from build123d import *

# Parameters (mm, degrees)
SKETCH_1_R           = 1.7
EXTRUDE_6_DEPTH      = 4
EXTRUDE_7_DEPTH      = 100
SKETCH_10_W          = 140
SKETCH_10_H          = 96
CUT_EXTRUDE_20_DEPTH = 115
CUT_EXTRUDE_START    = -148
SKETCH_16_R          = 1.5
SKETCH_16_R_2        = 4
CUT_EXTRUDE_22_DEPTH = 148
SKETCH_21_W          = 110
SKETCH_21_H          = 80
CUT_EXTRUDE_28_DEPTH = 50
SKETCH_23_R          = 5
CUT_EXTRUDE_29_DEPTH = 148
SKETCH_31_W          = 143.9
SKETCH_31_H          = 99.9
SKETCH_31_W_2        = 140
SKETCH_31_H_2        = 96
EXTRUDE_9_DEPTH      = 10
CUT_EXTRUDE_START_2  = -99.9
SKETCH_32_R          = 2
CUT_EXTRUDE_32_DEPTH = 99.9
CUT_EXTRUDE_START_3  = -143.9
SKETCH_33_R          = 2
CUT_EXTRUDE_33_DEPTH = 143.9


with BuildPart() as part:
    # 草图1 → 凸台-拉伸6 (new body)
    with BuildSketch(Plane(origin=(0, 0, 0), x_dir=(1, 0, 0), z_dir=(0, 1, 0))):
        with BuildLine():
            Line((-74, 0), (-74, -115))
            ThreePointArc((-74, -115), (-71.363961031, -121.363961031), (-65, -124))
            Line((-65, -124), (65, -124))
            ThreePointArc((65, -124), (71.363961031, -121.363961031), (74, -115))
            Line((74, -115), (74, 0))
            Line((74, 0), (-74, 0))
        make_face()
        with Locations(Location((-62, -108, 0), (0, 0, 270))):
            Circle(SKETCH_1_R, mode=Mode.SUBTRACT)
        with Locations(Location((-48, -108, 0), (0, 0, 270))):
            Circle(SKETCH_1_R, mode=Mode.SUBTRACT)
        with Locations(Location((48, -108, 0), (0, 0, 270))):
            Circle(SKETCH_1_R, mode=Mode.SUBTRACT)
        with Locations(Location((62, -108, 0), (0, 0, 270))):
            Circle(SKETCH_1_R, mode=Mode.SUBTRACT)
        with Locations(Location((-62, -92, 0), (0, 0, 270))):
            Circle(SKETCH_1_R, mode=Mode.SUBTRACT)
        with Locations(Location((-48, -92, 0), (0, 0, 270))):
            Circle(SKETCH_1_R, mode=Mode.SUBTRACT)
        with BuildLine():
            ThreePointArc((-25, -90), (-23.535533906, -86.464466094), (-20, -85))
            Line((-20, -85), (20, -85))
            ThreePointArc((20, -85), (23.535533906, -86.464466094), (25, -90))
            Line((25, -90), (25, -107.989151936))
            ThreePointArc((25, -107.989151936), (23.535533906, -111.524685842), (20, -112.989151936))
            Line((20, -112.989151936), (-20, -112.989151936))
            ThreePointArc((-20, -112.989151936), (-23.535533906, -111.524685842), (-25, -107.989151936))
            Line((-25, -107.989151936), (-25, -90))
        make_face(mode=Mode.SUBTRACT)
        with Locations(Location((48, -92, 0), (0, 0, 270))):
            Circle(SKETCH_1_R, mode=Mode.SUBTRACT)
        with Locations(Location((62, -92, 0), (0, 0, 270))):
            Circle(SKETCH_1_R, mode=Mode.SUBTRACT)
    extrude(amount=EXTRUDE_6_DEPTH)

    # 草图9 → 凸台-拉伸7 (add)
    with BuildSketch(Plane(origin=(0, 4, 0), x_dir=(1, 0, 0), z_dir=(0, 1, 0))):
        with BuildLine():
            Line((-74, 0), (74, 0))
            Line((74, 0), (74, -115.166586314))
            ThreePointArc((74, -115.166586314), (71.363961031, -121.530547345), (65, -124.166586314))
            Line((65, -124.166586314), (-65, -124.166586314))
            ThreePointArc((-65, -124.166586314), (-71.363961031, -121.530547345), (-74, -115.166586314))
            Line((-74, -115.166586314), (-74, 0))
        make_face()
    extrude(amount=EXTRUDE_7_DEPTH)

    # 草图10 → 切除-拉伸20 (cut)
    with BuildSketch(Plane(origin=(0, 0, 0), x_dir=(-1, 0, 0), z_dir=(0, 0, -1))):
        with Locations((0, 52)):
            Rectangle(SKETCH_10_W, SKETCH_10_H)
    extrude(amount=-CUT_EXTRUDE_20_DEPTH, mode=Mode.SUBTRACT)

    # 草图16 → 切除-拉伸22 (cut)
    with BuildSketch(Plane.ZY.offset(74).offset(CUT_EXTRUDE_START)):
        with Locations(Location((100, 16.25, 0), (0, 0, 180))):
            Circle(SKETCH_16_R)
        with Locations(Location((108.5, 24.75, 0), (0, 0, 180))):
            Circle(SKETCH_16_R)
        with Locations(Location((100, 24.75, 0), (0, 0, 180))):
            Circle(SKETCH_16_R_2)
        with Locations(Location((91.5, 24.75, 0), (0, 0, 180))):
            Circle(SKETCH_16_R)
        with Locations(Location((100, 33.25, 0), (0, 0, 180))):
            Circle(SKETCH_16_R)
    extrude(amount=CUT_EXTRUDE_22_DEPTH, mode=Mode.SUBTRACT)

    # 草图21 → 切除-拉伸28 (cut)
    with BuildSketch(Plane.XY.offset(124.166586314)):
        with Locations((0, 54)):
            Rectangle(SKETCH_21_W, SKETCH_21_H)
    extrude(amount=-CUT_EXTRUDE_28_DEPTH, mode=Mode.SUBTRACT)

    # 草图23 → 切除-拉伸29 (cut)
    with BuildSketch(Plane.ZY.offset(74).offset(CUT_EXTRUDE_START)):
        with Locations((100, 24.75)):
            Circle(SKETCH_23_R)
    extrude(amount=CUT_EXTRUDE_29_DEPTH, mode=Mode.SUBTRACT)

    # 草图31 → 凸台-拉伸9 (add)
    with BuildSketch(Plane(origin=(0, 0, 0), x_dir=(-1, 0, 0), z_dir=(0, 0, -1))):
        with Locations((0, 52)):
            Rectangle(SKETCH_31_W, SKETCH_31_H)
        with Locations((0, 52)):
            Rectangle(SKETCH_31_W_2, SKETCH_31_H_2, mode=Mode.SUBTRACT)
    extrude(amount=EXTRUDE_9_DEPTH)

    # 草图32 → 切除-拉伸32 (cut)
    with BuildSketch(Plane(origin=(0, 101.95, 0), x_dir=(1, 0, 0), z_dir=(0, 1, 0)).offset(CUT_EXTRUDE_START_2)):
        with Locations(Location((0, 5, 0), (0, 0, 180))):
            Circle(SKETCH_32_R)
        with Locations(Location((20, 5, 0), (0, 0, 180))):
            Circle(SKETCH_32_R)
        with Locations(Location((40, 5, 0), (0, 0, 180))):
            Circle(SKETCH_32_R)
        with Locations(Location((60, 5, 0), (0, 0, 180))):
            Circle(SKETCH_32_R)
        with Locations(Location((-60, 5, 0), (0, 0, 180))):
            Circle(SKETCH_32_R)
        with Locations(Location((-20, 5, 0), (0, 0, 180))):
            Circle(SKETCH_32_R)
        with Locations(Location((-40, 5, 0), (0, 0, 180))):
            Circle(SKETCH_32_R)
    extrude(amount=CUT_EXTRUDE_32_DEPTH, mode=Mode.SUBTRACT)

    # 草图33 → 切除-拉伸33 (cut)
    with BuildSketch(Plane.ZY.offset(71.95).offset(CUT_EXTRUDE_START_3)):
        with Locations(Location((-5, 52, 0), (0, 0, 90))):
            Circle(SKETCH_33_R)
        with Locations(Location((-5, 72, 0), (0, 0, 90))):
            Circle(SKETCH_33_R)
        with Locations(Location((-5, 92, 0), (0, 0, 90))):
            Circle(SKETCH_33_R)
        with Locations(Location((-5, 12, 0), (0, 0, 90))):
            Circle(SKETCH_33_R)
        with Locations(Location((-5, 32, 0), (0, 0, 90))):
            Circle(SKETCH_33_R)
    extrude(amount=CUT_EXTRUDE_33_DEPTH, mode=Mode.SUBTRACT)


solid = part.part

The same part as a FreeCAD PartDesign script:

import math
import FreeCAD as App
import Part
import Sketcher


def add_polygon(sketch, points):
    """Adds a closed chain of lines whose ends are joined by coincident constraints."""
    first, n = sketch.GeometryCount, len(points)
    for a, b in zip(points, points[1:] + points[:1]):
        sketch.addGeometry(Part.LineSegment(App.Vector(*a, 0), App.Vector(*b, 0)), False)
    for i in range(n):
        sketch.addConstraint(Sketcher.Constraint("Coincident", first + i, 2, first + (i + 1) % n, 1))

doc = App.newDocument("Part")
body = doc.addObject("PartDesign::Body", "Body")

sketch1 = body.newObject("Sketcher::SketchObject", "Sketch")
sketch1.AttachmentSupport = (doc.getObject("XZ_Plane"), [""])
sketch1.MapMode = "FlatFace"
sketch1.addGeometry([
    Part.LineSegment(App.Vector(-74, 0, 0), App.Vector(-74, 115, 0)),
    Part.ArcOfCircle(Part.Circle(App.Vector(-65, 115, 0), App.Vector(0, 0, 1), 9), math.radians(90), math.radians(180)),
    Part.LineSegment(App.Vector(-65, 124, 0), App.Vector(65, 124, 0)),
    Part.ArcOfCircle(Part.Circle(App.Vector(65, 115, 0), App.Vector(0, 0, 1), 9), math.radians(0), math.radians(90)),
    Part.LineSegment(App.Vector(74, 115, 0), App.Vector(74, 0, 0)),
    Part.LineSegment(App.Vector(74, 0, 0), App.Vector(-74, 0, 0)),
    Part.Circle(App.Vector(-62, 108, 0), App.Vector(0, 0, 1), 1.7),
    Part.Circle(App.Vector(-48, 108, 0), App.Vector(0, 0, 1), 1.7),
    Part.Circle(App.Vector(48, 108, 0), App.Vector(0, 0, 1), 1.7),
    Part.Circle(App.Vector(62, 108, 0), App.Vector(0, 0, 1), 1.7),
    Part.LineSegment(App.Vector(-25, 108, 0), App.Vector(-25, 90, 0)),
    Part.ArcOfCircle(Part.Circle(App.Vector(-20, 90, 0), App.Vector(0, 0, 1), 5), math.radians(180), math.radians(270)),
    Part.LineSegment(App.Vector(-20, 85, 0), App.Vector(20, 85, 0)),
    Part.ArcOfCircle(Part.Circle(App.Vector(20, 90, 0), App.Vector(0, 0, 1), 5), math.radians(-90), math.radians(0)),
    Part.LineSegment(App.Vector(25, 90, 0), App.Vector(25, 108, 0)),
    Part.ArcOfCircle(Part.Circle(App.Vector(20, 108, 0), App.Vector(0, 0, 1), 5), math.radians(0), math.radians(90)),
    Part.LineSegment(App.Vector(20, 113, 0), App.Vector(-20, 113, 0)),
    Part.ArcOfCircle(Part.Circle(App.Vector(-20, 108, 0), App.Vector(0, 0, 1), 5), math.radians(90), math.radians(180)),
    Part.Circle(App.Vector(-62, 92, 0), App.Vector(0, 0, 1), 1.7),
    Part.Circle(App.Vector(-48, 92, 0), App.Vector(0, 0, 1), 1.7),
    Part.Circle(App.Vector(48, 92, 0), App.Vector(0, 0, 1), 1.7),
    Part.Circle(App.Vector(62, 92, 0), App.Vector(0, 0, 1), 1.7),
], False)
sketch1.addConstraint([
    Sketcher.Constraint("Tangent", 0, 2, 1, 2),
    Sketcher.Constraint("Tangent", 1, 1, 2, 1),
    Sketcher.Constraint("Tangent", 2, 2, 3, 2),
    Sketcher.Constraint("Tangent", 3, 1, 4, 1),
    Sketcher.Constraint("Coincident", 4, 2, 5, 1),
    Sketcher.Constraint("Coincident", 5, 2, 0, 1),
    Sketcher.Constraint("Tangent", 10, 2, 11, 1),
    Sketcher.Constraint("Tangent", 11, 2, 12, 1),
    Sketcher.Constraint("Tangent", 12, 2, 13, 1),
    Sketcher.Constraint("Tangent", 13, 2, 14, 1),
    Sketcher.Constraint("Tangent", 14, 2, 15, 1),
    Sketcher.Constraint("Tangent", 15, 2, 16, 1),
    Sketcher.Constraint("Tangent", 16, 2, 17, 1),
    Sketcher.Constraint("Tangent", 17, 2, 10, 1),
    Sketcher.Constraint("Vertical", 0),
    Sketcher.Constraint("Horizontal", 2),
    Sketcher.Constraint("Vertical", 4),
    Sketcher.Constraint("Horizontal", 5),
    Sketcher.Constraint("Vertical", 10),
    Sketcher.Constraint("Horizontal", 12),
    Sketcher.Constraint("Vertical", 14),
    Sketcher.Constraint("Horizontal", 16),
    Sketcher.Constraint("Equal", 1, 3),
    Sketcher.Constraint("Equal", 6, 7),
    Sketcher.Constraint("Equal", 7, 8),
    Sketcher.Constraint("Equal", 8, 9),
    Sketcher.Constraint("Equal", 11, 13),
    Sketcher.Constraint("Equal", 13, 15),
    Sketcher.Constraint("Equal", 15, 17),
    Sketcher.Constraint("Equal", 9, 18),
    Sketcher.Constraint("Equal", 18, 19),
    Sketcher.Constraint("Equal", 19, 20),
    Sketcher.Constraint("Equal", 20, 21),
    Sketcher.Constraint("Symmetric", 4, 2, 5, 2, -1, 1),
    Sketcher.Constraint("Symmetric", 7, 3, 8, 3, -2),
    Sketcher.Constraint("Symmetric", 6, 3, 9, 3, -2),
    Sketcher.Constraint("Symmetric", 19, 3, 20, 3, -2),
    Sketcher.Constraint("Symmetric", 18, 3, 21, 3, -2),
    Sketcher.Constraint("Horizontal", 6, 3, 7, 3),
    Sketcher.Constraint("Horizontal", 18, 3, 19, 3),
    Sketcher.Constraint("Vertical", 6, 3, 18, 3),
    Sketcher.Constraint("Vertical", 7, 3, 19, 3),
    Sketcher.Constraint("Radius", 1, 9.0),
    Sketcher.Constraint("Radius", 11, 5.0),
    Sketcher.Constraint("Diameter", 6, 3.4),
    Sketcher.Constraint("DistanceX", 2, 1, 2, 2, 130.0),
    Sketcher.Constraint("DistanceX", 12, 1, 12, 2, 40.0),
    Sketcher.Constraint("DistanceY", 0, 1, 0, 2, 115.0),
    Sketcher.Constraint("DistanceX", 6, 3, -1, 1, 62.0),
    Sketcher.Constraint("DistanceY", -1, 1, 6, 3, 108.0),
    Sketcher.Constraint("DistanceX", 7, 3, -1, 1, 48.0),
    Sketcher.Constraint("DistanceX", 11, 3, -1, 1, 20.0),
    Sketcher.Constraint("DistanceY", -1, 1, 11, 3, 90.0),
    Sketcher.Constraint("DistanceY", -1, 1, 18, 3, 92.0),
    Sketcher.Constraint("DistanceY", 10, 2, 10, 1, 17.989152),
])
pad1 = body.newObject("PartDesign::Pad", "Pad")
pad1.Profile = sketch1
pad1.Length = 4
pad1.Reversed = True

sketch2 = body.newObject("Sketcher::SketchObject", "Sketch001")
sketch2.AttachmentSupport = (doc.getObject("XZ_Plane"), [""])
sketch2.MapMode = "FlatFace"
sketch2.AttachmentOffset = App.Placement(App.Vector(0, 0, -4), App.Rotation())
sketch2.addGeometry([
    Part.LineSegment(App.Vector(74, 0, 0), App.Vector(-74, 0, 0)),
    Part.LineSegment(App.Vector(-74, 0, 0), App.Vector(-74, 115, 0)),
    Part.ArcOfCircle(Part.Circle(App.Vector(-65, 115, 0), App.Vector(0, 0, 1), 9), math.radians(90), math.radians(180)),
    Part.LineSegment(App.Vector(-65, 124, 0), App.Vector(65, 124, 0)),
    Part.ArcOfCircle(Part.Circle(App.Vector(65, 115, 0), App.Vector(0, 0, 1), 9), math.radians(0), math.radians(90)),
    Part.LineSegment(App.Vector(74, 115, 0), App.Vector(74, 0, 0)),
], False)
sketch2.addConstraint([
    Sketcher.Constraint("Coincident", 0, 2, 1, 1),
    Sketcher.Constraint("Tangent", 1, 2, 2, 2),
    Sketcher.Constraint("Tangent", 2, 1, 3, 1),
    Sketcher.Constraint("Tangent", 3, 2, 4, 2),
    Sketcher.Constraint("Tangent", 4, 1, 5, 1),
    Sketcher.Constraint("Coincident", 5, 2, 0, 1),
    Sketcher.Constraint("Horizontal", 0),
    Sketcher.Constraint("Vertical", 1),
    Sketcher.Constraint("Horizontal", 3),
    Sketcher.Constraint("Vertical", 5),
    Sketcher.Constraint("Equal", 2, 4),
    Sketcher.Constraint("Symmetric", 0, 2, 5, 2, -1, 1),
    Sketcher.Constraint("Radius", 2, 9.0),
    Sketcher.Constraint("DistanceX", 0, 2, 0, 1, 148.0),
    Sketcher.Constraint("DistanceY", 1, 1, 1, 2, 115.166586),
])
pad2 = body.newObject("PartDesign::Pad", "Pad001")
pad2.Profile = sketch2
pad2.Length = 100
pad2.Reversed = True

sketch3 = body.newObject("Sketcher::SketchObject", "Sketch002")
sketch3.AttachmentSupport = (doc.getObject("XY_Plane"), [""])
sketch3.MapMode = "FlatFace"
add_polygon(sketch3, [(70, 100), (70, 4), (-70, 4), (-70, 100)])
sketch3.addConstraint([
    Sketcher.Constraint("Vertical", 0),
    Sketcher.Constraint("Horizontal", 1),
    Sketcher.Constraint("Vertical", 2),
    Sketcher.Constraint("Horizontal", 3),
    Sketcher.Constraint("DistanceX", 1, 2, 1, 1, 140.0),
    Sketcher.Constraint("DistanceY", 0, 2, 0, 1, 96.0),
    Sketcher.Constraint("DistanceX", -1, 1, 0, 2, 70.0),
    Sketcher.Constraint("DistanceY", -1, 1, 0, 2, 4.0),
])
pocket1 = body.newObject("PartDesign::Pocket", "Pocket")
pocket1.Profile = sketch3
pocket1.Length = 115
pocket1.Reversed = True

sketch4 = body.newObject("Sketcher::SketchObject", "Sketch003")
sketch4.AttachmentSupport = (doc.getObject("YZ_Plane"), [""])
sketch4.MapMode = "FlatFace"
sketch4.AttachmentOffset = App.Placement(App.Vector(0, 0, 74), App.Rotation())
sketch4.addGeometry([
    Part.Circle(App.Vector(16.2, 100, 0), App.Vector(0, 0, 1), 1.5),
    Part.Circle(App.Vector(24.8, 108.5, 0), App.Vector(0, 0, 1), 1.5),
    Part.Circle(App.Vector(24.8, 100, 0), App.Vector(0, 0, 1), 4),
    Part.Circle(App.Vector(24.8, 91.5, 0), App.Vector(0, 0, 1), 1.5),
    Part.Circle(App.Vector(33.2, 100, 0), App.Vector(0, 0, 1), 1.5),
], False)
sketch4.addConstraint([
    Sketcher.Constraint("Equal", 0, 1),
    Sketcher.Constraint("Equal", 1, 3),
    Sketcher.Constraint("Equal", 3, 4),
    Sketcher.Constraint("Horizontal", 0, 3, 2, 3),
    Sketcher.Constraint("Horizontal", 2, 3, 4, 3),
    Sketcher.Constraint("Vertical", 1, 3, 2, 3),
    Sketcher.Constraint("Vertical", 2, 3, 3, 3),
    Sketcher.Constraint("Diameter", 0, 3.0),
    Sketcher.Constraint("Diameter", 2, 8.0),
    Sketcher.Constraint("DistanceY", -1, 1, 0, 3, 100.0),
    Sketcher.Constraint("DistanceY", 3, 3, 1, 3, 17.0),
    Sketcher.Constraint("DistanceX", 0, 3, 4, 3, 17.0),
    Sketcher.Constraint("DistanceY", -1, 1, 1, 3, 108.5),
    Sketcher.Constraint("DistanceX", 0, 3, 1, 3, 8.5),
    Sketcher.Constraint("DistanceX", -1, 1, 0, 3, 16.25),
])
pocket2 = body.newObject("PartDesign::Pocket", "Pocket001")
pocket2.Profile = sketch4
pocket2.Length = 148

sketch5 = body.newObject("Sketcher::SketchObject", "Sketch004")
sketch5.AttachmentSupport = (doc.getObject("XY_Plane"), [""])
sketch5.MapMode = "FlatFace"
sketch5.AttachmentOffset = App.Placement(App.Vector(0, 0, 124.166586), App.Rotation())
add_polygon(sketch5, [(-55, 94), (-55, 14), (55, 14), (55, 94)])
sketch5.addConstraint([
    Sketcher.Constraint("Vertical", 0),
    Sketcher.Constraint("Horizontal", 1),
    Sketcher.Constraint("Vertical", 2),
    Sketcher.Constraint("Horizontal", 3),
    Sketcher.Constraint("DistanceX", 1, 1, 1, 2, 110.0),
    Sketcher.Constraint("DistanceY", 0, 2, 0, 1, 80.0),
    Sketcher.Constraint("DistanceX", 0, 2, -1, 1, 55.0),
    Sketcher.Constraint("DistanceY", -1, 1, 0, 2, 14.0),
])
pocket3 = body.newObject("PartDesign::Pocket", "Pocket002")
pocket3.Profile = sketch5
pocket3.Length = 50

sketch6 = body.newObject("Sketcher::SketchObject", "Sketch005")
sketch6.AttachmentSupport = (doc.getObject("YZ_Plane"), [""])
sketch6.MapMode = "FlatFace"
sketch6.AttachmentOffset = App.Placement(App.Vector(0, 0, 74), App.Rotation())
sketch6.addGeometry(Part.Circle(App.Vector(25, 100, 0), App.Vector(0, 0, 1), 5), False)
sketch6.addConstraint([
    Sketcher.Constraint("Diameter", 0, 10.0),
    Sketcher.Constraint("DistanceY", -1, 1, 0, 3, 100.0),
    Sketcher.Constraint("DistanceX", -1, 1, 0, 3, 24.75),
])
pocket4 = body.newObject("PartDesign::Pocket", "Pocket003")
pocket4.Profile = sketch6
pocket4.Length = 148

sketch7 = body.newObject("Sketcher::SketchObject", "Sketch006")
sketch7.AttachmentSupport = (doc.getObject("XY_Plane"), [""])
sketch7.MapMode = "FlatFace"
add_polygon(sketch7, [(72, 102), (72, 2), (-72, 2), (-72, 102)])
add_polygon(sketch7, [(-70, 4), (70, 4), (70, 100), (-70, 100)])
sketch7.addConstraint([
    Sketcher.Constraint("Vertical", 0),
    Sketcher.Constraint("Horizontal", 1),
    Sketcher.Constraint("Vertical", 2),
    Sketcher.Constraint("Horizontal", 3),
    Sketcher.Constraint("Horizontal", 4),
    Sketcher.Constraint("Vertical", 5),
    Sketcher.Constraint("Horizontal", 6),
    Sketcher.Constraint("Vertical", 7),
    Sketcher.Constraint("DistanceX", 4, 1, 4, 2, 140.0),
    Sketcher.Constraint("DistanceY", 5, 1, 5, 2, 96.0),
    Sketcher.Constraint("DistanceX", 1, 2, 1, 1, 143.9),
    Sketcher.Constraint("DistanceY", 0, 2, 0, 1, 99.9),
    Sketcher.Constraint("DistanceX", -1, 1, 4, 2, 70.0),
    Sketcher.Constraint("DistanceY", -1, 1, 4, 2, 4.0),
    Sketcher.Constraint("DistanceX", -1, 1, 0, 2, 71.95),
    Sketcher.Constraint("DistanceY", -1, 1, 0, 2, 2.05),
])
pad3 = body.newObject("PartDesign::Pad", "Pad002")
pad3.Profile = sketch7
pad3.Length = 10
pad3.Reversed = True

sketch8 = body.newObject("Sketcher::SketchObject", "Sketch007")
sketch8.AttachmentSupport = (doc.getObject("XZ_Plane"), [""])
sketch8.MapMode = "FlatFace"
sketch8.AttachmentOffset = App.Placement(App.Vector(0, 0, -2.05), App.Rotation())
sketch8.addGeometry([
    Part.Circle(App.Vector(0, -5, 0), App.Vector(0, 0, 1), 2),
    Part.Circle(App.Vector(20, -5, 0), App.Vector(0, 0, 1), 2),
    Part.Circle(App.Vector(40, -5, 0), App.Vector(0, 0, 1), 2),
    Part.Circle(App.Vector(60, -5, 0), App.Vector(0, 0, 1), 2),
    Part.Circle(App.Vector(-60, -5, 0), App.Vector(0, 0, 1), 2),
    Part.Circle(App.Vector(-20, -5, 0), App.Vector(0, 0, 1), 2),
    Part.Circle(App.Vector(-40, -5, 0), App.Vector(0, 0, 1), 2),
], False)
sketch8.addConstraint([
    Sketcher.Constraint("Equal", 0, 1),
    Sketcher.Constraint("Equal", 1, 2),
    Sketcher.Constraint("Equal", 2, 3),
    Sketcher.Constraint("Equal", 3, 4),
    Sketcher.Constraint("Equal", 4, 5),
    Sketcher.Constraint("Equal", 5, 6),
    Sketcher.Constraint("Symmetric", 3, 3, 4, 3, -2),
    Sketcher.Constraint("Symmetric", 1, 3, 5, 3, -2),
    Sketcher.Constraint("Symmetric", 2, 3, 6, 3, -2),
    Sketcher.Constraint("PointOnObject", 0, 3, -2),
    Sketcher.Constraint("Horizontal", 0, 3, 1, 3),
    Sketcher.Constraint("Horizontal", 1, 3, 2, 3),
    Sketcher.Constraint("Horizontal", 2, 3, 3, 3),
    Sketcher.Constraint("Diameter", 0, 4.0),
    Sketcher.Constraint("DistanceY", 0, 3, -1, 1, 5.0),
    Sketcher.Constraint("DistanceX", -1, 1, 1, 3, 20.0),
    Sketcher.Constraint("DistanceX", -1, 1, 2, 3, 40.0),
    Sketcher.Constraint("DistanceX", -1, 1, 3, 3, 60.0),
])
pocket5 = body.newObject("PartDesign::Pocket", "Pocket004")
pocket5.Profile = sketch8
pocket5.Length = 99.9

sketch9 = body.newObject("Sketcher::SketchObject", "Sketch008")
sketch9.AttachmentSupport = (doc.getObject("YZ_Plane"), [""])
sketch9.MapMode = "FlatFace"
sketch9.AttachmentOffset = App.Placement(App.Vector(0, 0, 71.95), App.Rotation())
sketch9.addGeometry([
    Part.Circle(App.Vector(52, -5, 0), App.Vector(0, 0, 1), 2),
    Part.Circle(App.Vector(72, -5, 0), App.Vector(0, 0, 1), 2),
    Part.Circle(App.Vector(92, -5, 0), App.Vector(0, 0, 1), 2),
    Part.Circle(App.Vector(12, -5, 0), App.Vector(0, 0, 1), 2),
    Part.Circle(App.Vector(32, -5, 0), App.Vector(0, 0, 1), 2),
], False)
sketch9.addConstraint([
    Sketcher.Constraint("Equal", 0, 1),
    Sketcher.Constraint("Equal", 1, 2),
    Sketcher.Constraint("Equal", 2, 3),
    Sketcher.Constraint("Equal", 3, 4),
    Sketcher.Constraint("Horizontal", 0, 3, 1, 3),
    Sketcher.Constraint("Horizontal", 1, 3, 2, 3),
    Sketcher.Constraint("Horizontal", 2, 3, 3, 3),
    Sketcher.Constraint("Horizontal", 3, 3, 4, 3),
    Sketcher.Constraint("Diameter", 0, 4.0),
    Sketcher.Constraint("DistanceX", -1, 1, 0, 3, 52.0),
    Sketcher.Constraint("DistanceY", 0, 3, -1, 1, 5.0),
    Sketcher.Constraint("DistanceX", -1, 1, 1, 3, 72.0),
    Sketcher.Constraint("DistanceX", -1, 1, 2, 3, 92.0),
    Sketcher.Constraint("DistanceX", -1, 1, 3, 3, 12.0),
    Sketcher.Constraint("DistanceX", -1, 1, 4, 3, 32.0),
])
pocket6 = body.newObject("PartDesign::Pocket", "Pocket005")
pocket6.Profile = sketch9
pocket6.Length = 143.9

doc.recompute()
